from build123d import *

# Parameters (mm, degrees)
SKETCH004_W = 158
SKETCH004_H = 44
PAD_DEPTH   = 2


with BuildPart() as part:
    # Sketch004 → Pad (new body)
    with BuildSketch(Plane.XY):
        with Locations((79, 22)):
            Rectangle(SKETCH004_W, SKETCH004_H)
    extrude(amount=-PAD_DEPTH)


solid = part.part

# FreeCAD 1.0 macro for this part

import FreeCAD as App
import Part
import Sketcher

V = App.Vector
Q = App.Units.Quantity


def add_polygon(sketch, points):
    """Adds a closed chain of lines whose ends are joined by coincident constraints."""
    first, n = sketch.GeometryCount, len(points)
    for a, b in zip(points, points[1:] + points[:1]):
        sketch.addGeometry(Part.LineSegment(App.Vector(*a, 0), App.Vector(*b, 0)), False)
    for i in range(n):
        sketch.addConstraint(Sketcher.Constraint("Coincident", first + i, 2, first + (i + 1) % n, 1))

doc = App.newDocument("Part")
body = doc.addObject("PartDesign::Body", "Body")

# Sketch on XY plane
sketch1 = body.newObject("Sketcher::SketchObject", "Sketch")
sketch1.AttachmentSupport = (doc.getObject("XY_Plane"), [""])
sketch1.MapMode = "FlatFace"
add_polygon(sketch1, [(0, 44), (0, 0), (158, 0), (158, 44)])  # lines 0-3
sketch1.addConstraint(Sketcher.Constraint("Vertical", 0))
sketch1.addConstraint(Sketcher.Constraint("Horizontal", 1))
sketch1.addConstraint(Sketcher.Constraint("Vertical", 2))
sketch1.addConstraint(Sketcher.Constraint("Horizontal", 3))
sketch1.addConstraint(Sketcher.Constraint("Coincident", 0, 2, -1, 1))
sketch1.addConstraint(Sketcher.Constraint("DistanceX", 1, 1, 1, 2, Q("158 mm")))
sketch1.addConstraint(Sketcher.Constraint("DistanceY", 0, 2, 0, 1, Q("44 mm")))
pad1 = body.newObject("PartDesign::Pad", "Pad")
pad1.Profile = sketch1
pad1.Length = 2
pad1.Reversed = True

doc.recompute()
